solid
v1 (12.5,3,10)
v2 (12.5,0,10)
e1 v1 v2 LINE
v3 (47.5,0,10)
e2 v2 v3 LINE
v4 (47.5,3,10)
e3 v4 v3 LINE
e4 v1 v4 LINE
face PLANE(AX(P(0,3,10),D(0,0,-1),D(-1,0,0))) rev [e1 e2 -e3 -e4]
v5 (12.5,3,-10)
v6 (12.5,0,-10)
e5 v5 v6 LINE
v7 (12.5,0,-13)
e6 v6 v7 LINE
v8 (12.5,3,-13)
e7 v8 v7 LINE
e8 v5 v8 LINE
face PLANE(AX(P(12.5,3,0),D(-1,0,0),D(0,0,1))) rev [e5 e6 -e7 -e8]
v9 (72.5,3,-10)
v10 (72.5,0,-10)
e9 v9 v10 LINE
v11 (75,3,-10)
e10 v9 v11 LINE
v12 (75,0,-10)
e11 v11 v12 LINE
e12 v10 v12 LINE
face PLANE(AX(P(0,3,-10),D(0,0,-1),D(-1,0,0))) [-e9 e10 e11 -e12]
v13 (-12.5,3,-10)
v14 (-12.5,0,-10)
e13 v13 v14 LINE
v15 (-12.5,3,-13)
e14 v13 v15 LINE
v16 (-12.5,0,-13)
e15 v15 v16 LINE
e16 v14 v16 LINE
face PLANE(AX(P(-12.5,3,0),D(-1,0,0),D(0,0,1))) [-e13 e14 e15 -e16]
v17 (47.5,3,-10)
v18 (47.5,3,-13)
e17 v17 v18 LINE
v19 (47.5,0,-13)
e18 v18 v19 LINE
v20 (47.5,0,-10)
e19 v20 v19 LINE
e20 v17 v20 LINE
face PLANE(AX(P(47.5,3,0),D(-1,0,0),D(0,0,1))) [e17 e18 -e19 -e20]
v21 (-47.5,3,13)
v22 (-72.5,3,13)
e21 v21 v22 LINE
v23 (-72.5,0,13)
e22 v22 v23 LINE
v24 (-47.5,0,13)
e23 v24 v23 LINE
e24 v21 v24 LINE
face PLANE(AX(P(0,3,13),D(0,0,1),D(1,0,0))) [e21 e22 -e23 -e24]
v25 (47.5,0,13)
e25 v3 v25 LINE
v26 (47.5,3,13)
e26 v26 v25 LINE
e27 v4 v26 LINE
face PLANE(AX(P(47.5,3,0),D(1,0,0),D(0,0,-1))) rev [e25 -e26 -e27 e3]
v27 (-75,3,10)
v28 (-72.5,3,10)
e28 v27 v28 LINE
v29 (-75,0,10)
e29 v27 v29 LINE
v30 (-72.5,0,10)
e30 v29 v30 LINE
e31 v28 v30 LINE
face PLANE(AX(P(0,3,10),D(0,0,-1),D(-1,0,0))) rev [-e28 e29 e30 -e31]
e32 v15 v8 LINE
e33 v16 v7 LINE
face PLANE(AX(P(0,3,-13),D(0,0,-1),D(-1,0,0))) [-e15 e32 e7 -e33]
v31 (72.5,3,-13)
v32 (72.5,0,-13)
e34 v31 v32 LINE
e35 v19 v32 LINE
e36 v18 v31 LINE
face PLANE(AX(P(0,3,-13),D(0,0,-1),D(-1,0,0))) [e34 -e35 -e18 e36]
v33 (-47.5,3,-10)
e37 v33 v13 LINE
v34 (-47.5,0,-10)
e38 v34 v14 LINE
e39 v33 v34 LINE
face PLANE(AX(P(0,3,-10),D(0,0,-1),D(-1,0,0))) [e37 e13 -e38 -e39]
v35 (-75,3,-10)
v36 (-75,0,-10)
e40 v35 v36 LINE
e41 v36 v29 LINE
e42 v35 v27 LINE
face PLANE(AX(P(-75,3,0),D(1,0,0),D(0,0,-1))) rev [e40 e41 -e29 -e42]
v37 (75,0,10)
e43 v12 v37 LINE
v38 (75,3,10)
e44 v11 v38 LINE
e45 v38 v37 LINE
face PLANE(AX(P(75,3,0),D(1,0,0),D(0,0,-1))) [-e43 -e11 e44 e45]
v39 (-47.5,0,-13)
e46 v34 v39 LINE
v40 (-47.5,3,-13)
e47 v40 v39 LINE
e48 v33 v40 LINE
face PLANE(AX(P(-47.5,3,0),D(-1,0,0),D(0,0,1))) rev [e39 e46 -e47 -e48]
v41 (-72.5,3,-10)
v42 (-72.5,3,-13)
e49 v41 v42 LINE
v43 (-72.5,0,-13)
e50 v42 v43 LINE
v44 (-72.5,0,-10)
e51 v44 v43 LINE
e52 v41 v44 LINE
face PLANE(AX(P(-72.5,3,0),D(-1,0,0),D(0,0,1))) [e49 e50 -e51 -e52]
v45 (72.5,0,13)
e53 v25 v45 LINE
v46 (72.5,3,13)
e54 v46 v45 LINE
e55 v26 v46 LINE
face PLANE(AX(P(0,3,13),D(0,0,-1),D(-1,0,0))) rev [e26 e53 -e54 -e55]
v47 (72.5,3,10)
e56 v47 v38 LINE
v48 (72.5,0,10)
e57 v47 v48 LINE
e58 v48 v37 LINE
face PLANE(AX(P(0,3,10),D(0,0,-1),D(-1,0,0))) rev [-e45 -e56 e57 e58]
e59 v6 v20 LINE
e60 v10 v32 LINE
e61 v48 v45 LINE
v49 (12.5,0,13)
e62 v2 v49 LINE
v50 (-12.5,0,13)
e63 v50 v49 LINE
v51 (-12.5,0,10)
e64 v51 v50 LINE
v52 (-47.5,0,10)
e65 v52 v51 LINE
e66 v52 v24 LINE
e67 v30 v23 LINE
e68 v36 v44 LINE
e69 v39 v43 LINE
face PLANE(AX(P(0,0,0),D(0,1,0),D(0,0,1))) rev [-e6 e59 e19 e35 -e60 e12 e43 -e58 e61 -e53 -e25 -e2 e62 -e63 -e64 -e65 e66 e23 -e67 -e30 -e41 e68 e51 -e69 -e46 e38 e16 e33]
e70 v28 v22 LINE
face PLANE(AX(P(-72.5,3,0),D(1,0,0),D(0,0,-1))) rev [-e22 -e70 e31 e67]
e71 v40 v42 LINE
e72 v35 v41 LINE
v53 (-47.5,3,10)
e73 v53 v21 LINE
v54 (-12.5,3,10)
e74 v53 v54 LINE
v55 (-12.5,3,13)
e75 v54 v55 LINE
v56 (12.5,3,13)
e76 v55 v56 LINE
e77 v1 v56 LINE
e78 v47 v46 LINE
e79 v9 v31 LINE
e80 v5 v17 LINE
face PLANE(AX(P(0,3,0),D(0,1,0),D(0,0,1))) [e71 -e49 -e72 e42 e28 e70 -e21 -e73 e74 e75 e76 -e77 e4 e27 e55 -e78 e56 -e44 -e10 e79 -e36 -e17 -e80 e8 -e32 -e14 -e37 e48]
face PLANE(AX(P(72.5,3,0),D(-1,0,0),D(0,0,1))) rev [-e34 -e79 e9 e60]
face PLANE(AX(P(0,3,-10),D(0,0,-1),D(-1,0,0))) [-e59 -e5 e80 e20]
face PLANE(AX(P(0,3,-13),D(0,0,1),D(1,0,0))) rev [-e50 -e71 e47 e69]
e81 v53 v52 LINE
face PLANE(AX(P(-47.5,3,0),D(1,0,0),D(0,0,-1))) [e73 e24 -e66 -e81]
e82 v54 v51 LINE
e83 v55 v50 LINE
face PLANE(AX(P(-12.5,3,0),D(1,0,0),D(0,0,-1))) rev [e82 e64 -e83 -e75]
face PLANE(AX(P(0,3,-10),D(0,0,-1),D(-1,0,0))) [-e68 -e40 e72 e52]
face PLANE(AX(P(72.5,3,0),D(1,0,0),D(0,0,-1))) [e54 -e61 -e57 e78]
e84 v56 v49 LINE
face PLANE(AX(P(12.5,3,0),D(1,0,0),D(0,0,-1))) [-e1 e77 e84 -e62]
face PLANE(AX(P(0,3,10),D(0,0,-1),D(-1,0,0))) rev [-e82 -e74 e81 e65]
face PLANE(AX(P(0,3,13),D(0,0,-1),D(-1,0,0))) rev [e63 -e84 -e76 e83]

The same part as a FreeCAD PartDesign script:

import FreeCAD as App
import Part
import Sketcher
Q = App.Units.Quantity


def add_polygon(sketch, points):
    """Adds a closed chain of lines whose ends are joined by coincident constraints."""
    first, n = sketch.GeometryCount, len(points)
    for a, b in zip(points, points[1:] + points[:1]):
        sketch.addGeometry(Part.LineSegment(App.Vector(*a, 0), App.Vector(*b, 0)), False)
    for i in range(n):
        sketch.addConstraint(Sketcher.Constraint("Coincident", first + i, 2, first + (i + 1) % n, 1))

doc = App.newDocument("Part")
body = doc.addObject("PartDesign::Body", "Body")

sketch1 = doc.addObject("Sketcher::SketchObject", "Sketch")
body.addObject(sketch1)
sketch1.AttachmentSupport = (doc.XZ_Plane, [""])
sketch1.MapMode = "FlatFace"
add_polygon(sketch1, [(-75, -10), (-75, 10), (-72.5, 10), (-72.5, 13), (-47.5, 13), (-47.5, 10), (-12.5, 10), (-12.5, 13), (12.5, 13), (12.5, 10), (47.5, 10), (47.5, 13), (72.5, 13), (72.5, 10), (75, 10), (75, -10), (72.5, -10), (72.5, -13), (47.5, -13), (47.5, -10), (12.5, -10), (12.5, -13), (-12.5, -13), (-12.5, -10), (-47.5, -10), (-47.5, -13), (-72.5, -13), (-72.5, -10)])
sketch1.addConstraint([
    Sketcher.Constraint("Vertical", 0),
    Sketcher.Constraint("Horizontal", 1),
    Sketcher.Constraint("Vertical", 2),
    Sketcher.Constraint("Horizontal", 3),
    Sketcher.Constraint("Vertical", 4),
    Sketcher.Constraint("Horizontal", 5),
    Sketcher.Constraint("Vertical", 6),
    Sketcher.Constraint("Horizontal", 7),
    Sketcher.Constraint("Vertical", 8),
    Sketcher.Constraint("Horizontal", 9),
    Sketcher.Constraint("Vertical", 10),
    Sketcher.Constraint("Horizontal", 11),
    Sketcher.Constraint("Vertical", 12),
    Sketcher.Constraint("Horizontal", 13),
    Sketcher.Constraint("Vertical", 14),
    Sketcher.Constraint("Horizontal", 15),
    Sketcher.Constraint("Vertical", 16),
    Sketcher.Constraint("Horizontal", 17),
    Sketcher.Constraint("Vertical", 18),
    Sketcher.Constraint("Horizontal", 19),
    Sketcher.Constraint("Vertical", 20),
    Sketcher.Constraint("Horizontal", 21),
    Sketcher.Constraint("Vertical", 22),
    Sketcher.Constraint("Horizontal", 23),
    Sketcher.Constraint("Vertical", 24),
    Sketcher.Constraint("Horizontal", 25),
    Sketcher.Constraint("Vertical", 26),
    Sketcher.Constraint("Horizontal", 27),
    Sketcher.Constraint("Symmetric", 0, 2, 14, 2, -1, 1),
    Sketcher.Constraint("Symmetric", 2, 2, 16, 2, -1, 1),
    Sketcher.Constraint("Symmetric", 4, 2, 18, 2, -1, 1),
    Sketcher.Constraint("Symmetric", 6, 2, 20, 2, -1, 1),
    Sketcher.Constraint("Symmetric", 8, 2, 22, 2, -1, 1),
    Sketcher.Constraint("Symmetric", 10, 2, 24, 2, -1, 1),
    Sketcher.Constraint("Symmetric", 12, 2, 26, 2, -1, 1),
    Sketcher.Constraint("Symmetric", 5, 2, 8, 2, -2),
    Sketcher.Constraint("Symmetric", 3, 2, 10, 2, -2),
    Sketcher.Constraint("Symmetric", 1, 2, 12, 2, -2),
    Sketcher.Constraint("Horizontal", 1, 2, 4, 2),
    Sketcher.Constraint("Horizontal", 3, 2, 6, 2),
    Sketcher.Constraint("Equal", 3, 7),
    Sketcher.Constraint("DistanceX", 3, 1, 3, 2, Q("25 mm")),
    Sketcher.Constraint("DistanceX", 5, 1, 5, 2, Q("35 mm")),
    Sketcher.Constraint("DistanceY", 0, 1, 0, 2, Q("20 mm")),
    Sketcher.Constraint("DistanceY", 2, 1, 2, 2, Q("3 mm")),
    Sketcher.Constraint("DistanceX", 1, 1, 1, 2, Q("2.5 mm")),
])
pad1 = doc.addObject("PartDesign::Pad", "Pad")
body.addObject(pad1)
pad1.Profile = sketch1
pad1.Length = 3
pad1.Reversed = True

doc.recompute()
